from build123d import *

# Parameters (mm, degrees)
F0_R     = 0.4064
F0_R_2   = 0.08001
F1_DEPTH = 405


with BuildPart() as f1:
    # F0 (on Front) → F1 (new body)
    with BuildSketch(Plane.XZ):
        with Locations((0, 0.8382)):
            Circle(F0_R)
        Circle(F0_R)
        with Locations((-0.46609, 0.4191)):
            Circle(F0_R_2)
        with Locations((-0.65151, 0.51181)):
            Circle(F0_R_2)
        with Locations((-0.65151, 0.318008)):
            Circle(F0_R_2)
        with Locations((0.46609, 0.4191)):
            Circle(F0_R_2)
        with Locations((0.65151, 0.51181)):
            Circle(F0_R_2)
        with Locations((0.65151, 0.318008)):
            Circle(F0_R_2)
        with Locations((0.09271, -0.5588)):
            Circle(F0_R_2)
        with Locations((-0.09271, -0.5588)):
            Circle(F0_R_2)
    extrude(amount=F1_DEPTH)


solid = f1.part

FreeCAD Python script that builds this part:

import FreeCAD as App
import Part
import Sketcher
Q = App.Units.Quantity

doc = App.newDocument("Part")
params = doc.addObject("Spreadsheet::Sheet", "Params")
for row, (alias, value) in enumerate([
    ("pad1_length", "405 mm"),
], start=1):
    params.set(f"A{row}", alias)
    params.set(f"B{row}", "=" + value)
    params.setAlias(f"B{row}", alias)

body = doc.addObject("PartDesign::Body", "Body")
body.AllowCompound = True

sketch1 = doc.addObject("Sketcher::SketchObject", "Sketch")
body.addObject(sketch1)
sketch1.AttachmentSupport = (doc.XZ_Plane, [""])
sketch1.MapMode = "FlatFace"
sketch1.addGeometry(Part.Circle(App.Vector(0, 0.84, 0), App.Vector(0, 0, 1), 0.41), False)
sketch1.addGeometry(Part.Circle(App.Vector(0, 0, 0), App.Vector(0, 0, 1), 0.41), False)
sketch1.addGeometry(Part.Circle(App.Vector(-0.47, 0.42, 0), App.Vector(0, 0, 1), 0.08), False)
sketch1.addGeometry(Part.Circle(App.Vector(-0.65, 0.51, 0), App.Vector(0, 0, 1), 0.08), False)
sketch1.addGeometry(Part.Circle(App.Vector(-0.65, 0.32, 0), App.Vector(0, 0, 1), 0.08), False)
sketch1.addGeometry(Part.Circle(App.Vector(0.47, 0.42, 0), App.Vector(0, 0, 1), 0.08), False)
sketch1.addGeometry(Part.Circle(App.Vector(0.65, 0.51, 0), App.Vector(0, 0, 1), 0.08), False)
sketch1.addGeometry(Part.Circle(App.Vector(0.65, 0.32, 0), App.Vector(0, 0, 1), 0.08), False)
sketch1.addGeometry(Part.Circle(App.Vector(0.09, -0.56, 0), App.Vector(0, 0, 1), 0.08), False)
sketch1.addGeometry(Part.Circle(App.Vector(-0.09, -0.56, 0), App.Vector(0, 0, 1), 0.08), False)
sketch1.addConstraint(Sketcher.Constraint("Coincident", 1, 3, -1, 1))
sketch1.addConstraint(Sketcher.Constraint("Equal", 0, 1))
sketch1.addConstraint(Sketcher.Constraint("Equal", 2, 3))
sketch1.addConstraint(Sketcher.Constraint("Equal", 3, 4))
sketch1.addConstraint(Sketcher.Constraint("Equal", 4, 5))
sketch1.addConstraint(Sketcher.Constraint("Equal", 5, 6))
sketch1.addConstraint(Sketcher.Constraint("Equal", 6, 7))
sketch1.addConstraint(Sketcher.Constraint("Equal", 7, 8))
sketch1.addConstraint(Sketcher.Constraint("Equal", 8, 9))
sketch1.addConstraint(Sketcher.Constraint("Symmetric", 2, 3, 5, 3, -2))
sketch1.addConstraint(Sketcher.Constraint("Symmetric", 3, 3, 6, 3, -2))
sketch1.addConstraint(Sketcher.Constraint("Symmetric", 4, 3, 7, 3, -2))
sketch1.addConstraint(Sketcher.Constraint("Symmetric", 8, 3, 9, 3, -2))
sketch1.addConstraint(Sketcher.Constraint("PointOnObject", 0, 3, -2))
sketch1.addConstraint(Sketcher.Constraint("Vertical", 3, 3, 4, 3))
sketch1.addConstraint(Sketcher.Constraint("Diameter", 0, Q("0.8128 mm")))
sketch1.addConstraint(Sketcher.Constraint("Diameter", 2, Q("0.16002 mm")))
sketch1.addConstraint(Sketcher.Constraint("DistanceY", -1, 1, 0, 3, Q("0.8382 mm")))
sketch1.addConstraint(Sketcher.Constraint("DistanceY", -1, 1, 2, 3, Q("0.4191 mm")))
sketch1.addConstraint(Sketcher.Constraint("DistanceY", 8, 3, -1, 1, Q("0.5588 mm")))
sketch1.addConstraint(Sketcher.Constraint("DistanceY", 4, 3, 3, 3, Q("0.193802 mm")))
sketch1.addConstraint(Sketcher.Constraint("DistanceX", 3, 3, 5, 3, Q("1.1176 mm")))
sketch1.addConstraint(Sketcher.Constraint("DistanceX", 8, 3, 7, 3, Q("0.5588 mm")))
sketch1.addConstraint(Sketcher.Constraint("DistanceX", 2, 3, -1, 1, Q("0.46609 mm")))
sketch1.addConstraint(Sketcher.Constraint("DistanceY", -1, 1, 3, 3, Q("0.51181 mm")))
pad1 = doc.addObject("PartDesign::Pad", "Pad")
body.addObject(pad1)
pad1.Profile = sketch1
pad1.setExpression("Length", "Params.pad1_length")

doc.recompute()
